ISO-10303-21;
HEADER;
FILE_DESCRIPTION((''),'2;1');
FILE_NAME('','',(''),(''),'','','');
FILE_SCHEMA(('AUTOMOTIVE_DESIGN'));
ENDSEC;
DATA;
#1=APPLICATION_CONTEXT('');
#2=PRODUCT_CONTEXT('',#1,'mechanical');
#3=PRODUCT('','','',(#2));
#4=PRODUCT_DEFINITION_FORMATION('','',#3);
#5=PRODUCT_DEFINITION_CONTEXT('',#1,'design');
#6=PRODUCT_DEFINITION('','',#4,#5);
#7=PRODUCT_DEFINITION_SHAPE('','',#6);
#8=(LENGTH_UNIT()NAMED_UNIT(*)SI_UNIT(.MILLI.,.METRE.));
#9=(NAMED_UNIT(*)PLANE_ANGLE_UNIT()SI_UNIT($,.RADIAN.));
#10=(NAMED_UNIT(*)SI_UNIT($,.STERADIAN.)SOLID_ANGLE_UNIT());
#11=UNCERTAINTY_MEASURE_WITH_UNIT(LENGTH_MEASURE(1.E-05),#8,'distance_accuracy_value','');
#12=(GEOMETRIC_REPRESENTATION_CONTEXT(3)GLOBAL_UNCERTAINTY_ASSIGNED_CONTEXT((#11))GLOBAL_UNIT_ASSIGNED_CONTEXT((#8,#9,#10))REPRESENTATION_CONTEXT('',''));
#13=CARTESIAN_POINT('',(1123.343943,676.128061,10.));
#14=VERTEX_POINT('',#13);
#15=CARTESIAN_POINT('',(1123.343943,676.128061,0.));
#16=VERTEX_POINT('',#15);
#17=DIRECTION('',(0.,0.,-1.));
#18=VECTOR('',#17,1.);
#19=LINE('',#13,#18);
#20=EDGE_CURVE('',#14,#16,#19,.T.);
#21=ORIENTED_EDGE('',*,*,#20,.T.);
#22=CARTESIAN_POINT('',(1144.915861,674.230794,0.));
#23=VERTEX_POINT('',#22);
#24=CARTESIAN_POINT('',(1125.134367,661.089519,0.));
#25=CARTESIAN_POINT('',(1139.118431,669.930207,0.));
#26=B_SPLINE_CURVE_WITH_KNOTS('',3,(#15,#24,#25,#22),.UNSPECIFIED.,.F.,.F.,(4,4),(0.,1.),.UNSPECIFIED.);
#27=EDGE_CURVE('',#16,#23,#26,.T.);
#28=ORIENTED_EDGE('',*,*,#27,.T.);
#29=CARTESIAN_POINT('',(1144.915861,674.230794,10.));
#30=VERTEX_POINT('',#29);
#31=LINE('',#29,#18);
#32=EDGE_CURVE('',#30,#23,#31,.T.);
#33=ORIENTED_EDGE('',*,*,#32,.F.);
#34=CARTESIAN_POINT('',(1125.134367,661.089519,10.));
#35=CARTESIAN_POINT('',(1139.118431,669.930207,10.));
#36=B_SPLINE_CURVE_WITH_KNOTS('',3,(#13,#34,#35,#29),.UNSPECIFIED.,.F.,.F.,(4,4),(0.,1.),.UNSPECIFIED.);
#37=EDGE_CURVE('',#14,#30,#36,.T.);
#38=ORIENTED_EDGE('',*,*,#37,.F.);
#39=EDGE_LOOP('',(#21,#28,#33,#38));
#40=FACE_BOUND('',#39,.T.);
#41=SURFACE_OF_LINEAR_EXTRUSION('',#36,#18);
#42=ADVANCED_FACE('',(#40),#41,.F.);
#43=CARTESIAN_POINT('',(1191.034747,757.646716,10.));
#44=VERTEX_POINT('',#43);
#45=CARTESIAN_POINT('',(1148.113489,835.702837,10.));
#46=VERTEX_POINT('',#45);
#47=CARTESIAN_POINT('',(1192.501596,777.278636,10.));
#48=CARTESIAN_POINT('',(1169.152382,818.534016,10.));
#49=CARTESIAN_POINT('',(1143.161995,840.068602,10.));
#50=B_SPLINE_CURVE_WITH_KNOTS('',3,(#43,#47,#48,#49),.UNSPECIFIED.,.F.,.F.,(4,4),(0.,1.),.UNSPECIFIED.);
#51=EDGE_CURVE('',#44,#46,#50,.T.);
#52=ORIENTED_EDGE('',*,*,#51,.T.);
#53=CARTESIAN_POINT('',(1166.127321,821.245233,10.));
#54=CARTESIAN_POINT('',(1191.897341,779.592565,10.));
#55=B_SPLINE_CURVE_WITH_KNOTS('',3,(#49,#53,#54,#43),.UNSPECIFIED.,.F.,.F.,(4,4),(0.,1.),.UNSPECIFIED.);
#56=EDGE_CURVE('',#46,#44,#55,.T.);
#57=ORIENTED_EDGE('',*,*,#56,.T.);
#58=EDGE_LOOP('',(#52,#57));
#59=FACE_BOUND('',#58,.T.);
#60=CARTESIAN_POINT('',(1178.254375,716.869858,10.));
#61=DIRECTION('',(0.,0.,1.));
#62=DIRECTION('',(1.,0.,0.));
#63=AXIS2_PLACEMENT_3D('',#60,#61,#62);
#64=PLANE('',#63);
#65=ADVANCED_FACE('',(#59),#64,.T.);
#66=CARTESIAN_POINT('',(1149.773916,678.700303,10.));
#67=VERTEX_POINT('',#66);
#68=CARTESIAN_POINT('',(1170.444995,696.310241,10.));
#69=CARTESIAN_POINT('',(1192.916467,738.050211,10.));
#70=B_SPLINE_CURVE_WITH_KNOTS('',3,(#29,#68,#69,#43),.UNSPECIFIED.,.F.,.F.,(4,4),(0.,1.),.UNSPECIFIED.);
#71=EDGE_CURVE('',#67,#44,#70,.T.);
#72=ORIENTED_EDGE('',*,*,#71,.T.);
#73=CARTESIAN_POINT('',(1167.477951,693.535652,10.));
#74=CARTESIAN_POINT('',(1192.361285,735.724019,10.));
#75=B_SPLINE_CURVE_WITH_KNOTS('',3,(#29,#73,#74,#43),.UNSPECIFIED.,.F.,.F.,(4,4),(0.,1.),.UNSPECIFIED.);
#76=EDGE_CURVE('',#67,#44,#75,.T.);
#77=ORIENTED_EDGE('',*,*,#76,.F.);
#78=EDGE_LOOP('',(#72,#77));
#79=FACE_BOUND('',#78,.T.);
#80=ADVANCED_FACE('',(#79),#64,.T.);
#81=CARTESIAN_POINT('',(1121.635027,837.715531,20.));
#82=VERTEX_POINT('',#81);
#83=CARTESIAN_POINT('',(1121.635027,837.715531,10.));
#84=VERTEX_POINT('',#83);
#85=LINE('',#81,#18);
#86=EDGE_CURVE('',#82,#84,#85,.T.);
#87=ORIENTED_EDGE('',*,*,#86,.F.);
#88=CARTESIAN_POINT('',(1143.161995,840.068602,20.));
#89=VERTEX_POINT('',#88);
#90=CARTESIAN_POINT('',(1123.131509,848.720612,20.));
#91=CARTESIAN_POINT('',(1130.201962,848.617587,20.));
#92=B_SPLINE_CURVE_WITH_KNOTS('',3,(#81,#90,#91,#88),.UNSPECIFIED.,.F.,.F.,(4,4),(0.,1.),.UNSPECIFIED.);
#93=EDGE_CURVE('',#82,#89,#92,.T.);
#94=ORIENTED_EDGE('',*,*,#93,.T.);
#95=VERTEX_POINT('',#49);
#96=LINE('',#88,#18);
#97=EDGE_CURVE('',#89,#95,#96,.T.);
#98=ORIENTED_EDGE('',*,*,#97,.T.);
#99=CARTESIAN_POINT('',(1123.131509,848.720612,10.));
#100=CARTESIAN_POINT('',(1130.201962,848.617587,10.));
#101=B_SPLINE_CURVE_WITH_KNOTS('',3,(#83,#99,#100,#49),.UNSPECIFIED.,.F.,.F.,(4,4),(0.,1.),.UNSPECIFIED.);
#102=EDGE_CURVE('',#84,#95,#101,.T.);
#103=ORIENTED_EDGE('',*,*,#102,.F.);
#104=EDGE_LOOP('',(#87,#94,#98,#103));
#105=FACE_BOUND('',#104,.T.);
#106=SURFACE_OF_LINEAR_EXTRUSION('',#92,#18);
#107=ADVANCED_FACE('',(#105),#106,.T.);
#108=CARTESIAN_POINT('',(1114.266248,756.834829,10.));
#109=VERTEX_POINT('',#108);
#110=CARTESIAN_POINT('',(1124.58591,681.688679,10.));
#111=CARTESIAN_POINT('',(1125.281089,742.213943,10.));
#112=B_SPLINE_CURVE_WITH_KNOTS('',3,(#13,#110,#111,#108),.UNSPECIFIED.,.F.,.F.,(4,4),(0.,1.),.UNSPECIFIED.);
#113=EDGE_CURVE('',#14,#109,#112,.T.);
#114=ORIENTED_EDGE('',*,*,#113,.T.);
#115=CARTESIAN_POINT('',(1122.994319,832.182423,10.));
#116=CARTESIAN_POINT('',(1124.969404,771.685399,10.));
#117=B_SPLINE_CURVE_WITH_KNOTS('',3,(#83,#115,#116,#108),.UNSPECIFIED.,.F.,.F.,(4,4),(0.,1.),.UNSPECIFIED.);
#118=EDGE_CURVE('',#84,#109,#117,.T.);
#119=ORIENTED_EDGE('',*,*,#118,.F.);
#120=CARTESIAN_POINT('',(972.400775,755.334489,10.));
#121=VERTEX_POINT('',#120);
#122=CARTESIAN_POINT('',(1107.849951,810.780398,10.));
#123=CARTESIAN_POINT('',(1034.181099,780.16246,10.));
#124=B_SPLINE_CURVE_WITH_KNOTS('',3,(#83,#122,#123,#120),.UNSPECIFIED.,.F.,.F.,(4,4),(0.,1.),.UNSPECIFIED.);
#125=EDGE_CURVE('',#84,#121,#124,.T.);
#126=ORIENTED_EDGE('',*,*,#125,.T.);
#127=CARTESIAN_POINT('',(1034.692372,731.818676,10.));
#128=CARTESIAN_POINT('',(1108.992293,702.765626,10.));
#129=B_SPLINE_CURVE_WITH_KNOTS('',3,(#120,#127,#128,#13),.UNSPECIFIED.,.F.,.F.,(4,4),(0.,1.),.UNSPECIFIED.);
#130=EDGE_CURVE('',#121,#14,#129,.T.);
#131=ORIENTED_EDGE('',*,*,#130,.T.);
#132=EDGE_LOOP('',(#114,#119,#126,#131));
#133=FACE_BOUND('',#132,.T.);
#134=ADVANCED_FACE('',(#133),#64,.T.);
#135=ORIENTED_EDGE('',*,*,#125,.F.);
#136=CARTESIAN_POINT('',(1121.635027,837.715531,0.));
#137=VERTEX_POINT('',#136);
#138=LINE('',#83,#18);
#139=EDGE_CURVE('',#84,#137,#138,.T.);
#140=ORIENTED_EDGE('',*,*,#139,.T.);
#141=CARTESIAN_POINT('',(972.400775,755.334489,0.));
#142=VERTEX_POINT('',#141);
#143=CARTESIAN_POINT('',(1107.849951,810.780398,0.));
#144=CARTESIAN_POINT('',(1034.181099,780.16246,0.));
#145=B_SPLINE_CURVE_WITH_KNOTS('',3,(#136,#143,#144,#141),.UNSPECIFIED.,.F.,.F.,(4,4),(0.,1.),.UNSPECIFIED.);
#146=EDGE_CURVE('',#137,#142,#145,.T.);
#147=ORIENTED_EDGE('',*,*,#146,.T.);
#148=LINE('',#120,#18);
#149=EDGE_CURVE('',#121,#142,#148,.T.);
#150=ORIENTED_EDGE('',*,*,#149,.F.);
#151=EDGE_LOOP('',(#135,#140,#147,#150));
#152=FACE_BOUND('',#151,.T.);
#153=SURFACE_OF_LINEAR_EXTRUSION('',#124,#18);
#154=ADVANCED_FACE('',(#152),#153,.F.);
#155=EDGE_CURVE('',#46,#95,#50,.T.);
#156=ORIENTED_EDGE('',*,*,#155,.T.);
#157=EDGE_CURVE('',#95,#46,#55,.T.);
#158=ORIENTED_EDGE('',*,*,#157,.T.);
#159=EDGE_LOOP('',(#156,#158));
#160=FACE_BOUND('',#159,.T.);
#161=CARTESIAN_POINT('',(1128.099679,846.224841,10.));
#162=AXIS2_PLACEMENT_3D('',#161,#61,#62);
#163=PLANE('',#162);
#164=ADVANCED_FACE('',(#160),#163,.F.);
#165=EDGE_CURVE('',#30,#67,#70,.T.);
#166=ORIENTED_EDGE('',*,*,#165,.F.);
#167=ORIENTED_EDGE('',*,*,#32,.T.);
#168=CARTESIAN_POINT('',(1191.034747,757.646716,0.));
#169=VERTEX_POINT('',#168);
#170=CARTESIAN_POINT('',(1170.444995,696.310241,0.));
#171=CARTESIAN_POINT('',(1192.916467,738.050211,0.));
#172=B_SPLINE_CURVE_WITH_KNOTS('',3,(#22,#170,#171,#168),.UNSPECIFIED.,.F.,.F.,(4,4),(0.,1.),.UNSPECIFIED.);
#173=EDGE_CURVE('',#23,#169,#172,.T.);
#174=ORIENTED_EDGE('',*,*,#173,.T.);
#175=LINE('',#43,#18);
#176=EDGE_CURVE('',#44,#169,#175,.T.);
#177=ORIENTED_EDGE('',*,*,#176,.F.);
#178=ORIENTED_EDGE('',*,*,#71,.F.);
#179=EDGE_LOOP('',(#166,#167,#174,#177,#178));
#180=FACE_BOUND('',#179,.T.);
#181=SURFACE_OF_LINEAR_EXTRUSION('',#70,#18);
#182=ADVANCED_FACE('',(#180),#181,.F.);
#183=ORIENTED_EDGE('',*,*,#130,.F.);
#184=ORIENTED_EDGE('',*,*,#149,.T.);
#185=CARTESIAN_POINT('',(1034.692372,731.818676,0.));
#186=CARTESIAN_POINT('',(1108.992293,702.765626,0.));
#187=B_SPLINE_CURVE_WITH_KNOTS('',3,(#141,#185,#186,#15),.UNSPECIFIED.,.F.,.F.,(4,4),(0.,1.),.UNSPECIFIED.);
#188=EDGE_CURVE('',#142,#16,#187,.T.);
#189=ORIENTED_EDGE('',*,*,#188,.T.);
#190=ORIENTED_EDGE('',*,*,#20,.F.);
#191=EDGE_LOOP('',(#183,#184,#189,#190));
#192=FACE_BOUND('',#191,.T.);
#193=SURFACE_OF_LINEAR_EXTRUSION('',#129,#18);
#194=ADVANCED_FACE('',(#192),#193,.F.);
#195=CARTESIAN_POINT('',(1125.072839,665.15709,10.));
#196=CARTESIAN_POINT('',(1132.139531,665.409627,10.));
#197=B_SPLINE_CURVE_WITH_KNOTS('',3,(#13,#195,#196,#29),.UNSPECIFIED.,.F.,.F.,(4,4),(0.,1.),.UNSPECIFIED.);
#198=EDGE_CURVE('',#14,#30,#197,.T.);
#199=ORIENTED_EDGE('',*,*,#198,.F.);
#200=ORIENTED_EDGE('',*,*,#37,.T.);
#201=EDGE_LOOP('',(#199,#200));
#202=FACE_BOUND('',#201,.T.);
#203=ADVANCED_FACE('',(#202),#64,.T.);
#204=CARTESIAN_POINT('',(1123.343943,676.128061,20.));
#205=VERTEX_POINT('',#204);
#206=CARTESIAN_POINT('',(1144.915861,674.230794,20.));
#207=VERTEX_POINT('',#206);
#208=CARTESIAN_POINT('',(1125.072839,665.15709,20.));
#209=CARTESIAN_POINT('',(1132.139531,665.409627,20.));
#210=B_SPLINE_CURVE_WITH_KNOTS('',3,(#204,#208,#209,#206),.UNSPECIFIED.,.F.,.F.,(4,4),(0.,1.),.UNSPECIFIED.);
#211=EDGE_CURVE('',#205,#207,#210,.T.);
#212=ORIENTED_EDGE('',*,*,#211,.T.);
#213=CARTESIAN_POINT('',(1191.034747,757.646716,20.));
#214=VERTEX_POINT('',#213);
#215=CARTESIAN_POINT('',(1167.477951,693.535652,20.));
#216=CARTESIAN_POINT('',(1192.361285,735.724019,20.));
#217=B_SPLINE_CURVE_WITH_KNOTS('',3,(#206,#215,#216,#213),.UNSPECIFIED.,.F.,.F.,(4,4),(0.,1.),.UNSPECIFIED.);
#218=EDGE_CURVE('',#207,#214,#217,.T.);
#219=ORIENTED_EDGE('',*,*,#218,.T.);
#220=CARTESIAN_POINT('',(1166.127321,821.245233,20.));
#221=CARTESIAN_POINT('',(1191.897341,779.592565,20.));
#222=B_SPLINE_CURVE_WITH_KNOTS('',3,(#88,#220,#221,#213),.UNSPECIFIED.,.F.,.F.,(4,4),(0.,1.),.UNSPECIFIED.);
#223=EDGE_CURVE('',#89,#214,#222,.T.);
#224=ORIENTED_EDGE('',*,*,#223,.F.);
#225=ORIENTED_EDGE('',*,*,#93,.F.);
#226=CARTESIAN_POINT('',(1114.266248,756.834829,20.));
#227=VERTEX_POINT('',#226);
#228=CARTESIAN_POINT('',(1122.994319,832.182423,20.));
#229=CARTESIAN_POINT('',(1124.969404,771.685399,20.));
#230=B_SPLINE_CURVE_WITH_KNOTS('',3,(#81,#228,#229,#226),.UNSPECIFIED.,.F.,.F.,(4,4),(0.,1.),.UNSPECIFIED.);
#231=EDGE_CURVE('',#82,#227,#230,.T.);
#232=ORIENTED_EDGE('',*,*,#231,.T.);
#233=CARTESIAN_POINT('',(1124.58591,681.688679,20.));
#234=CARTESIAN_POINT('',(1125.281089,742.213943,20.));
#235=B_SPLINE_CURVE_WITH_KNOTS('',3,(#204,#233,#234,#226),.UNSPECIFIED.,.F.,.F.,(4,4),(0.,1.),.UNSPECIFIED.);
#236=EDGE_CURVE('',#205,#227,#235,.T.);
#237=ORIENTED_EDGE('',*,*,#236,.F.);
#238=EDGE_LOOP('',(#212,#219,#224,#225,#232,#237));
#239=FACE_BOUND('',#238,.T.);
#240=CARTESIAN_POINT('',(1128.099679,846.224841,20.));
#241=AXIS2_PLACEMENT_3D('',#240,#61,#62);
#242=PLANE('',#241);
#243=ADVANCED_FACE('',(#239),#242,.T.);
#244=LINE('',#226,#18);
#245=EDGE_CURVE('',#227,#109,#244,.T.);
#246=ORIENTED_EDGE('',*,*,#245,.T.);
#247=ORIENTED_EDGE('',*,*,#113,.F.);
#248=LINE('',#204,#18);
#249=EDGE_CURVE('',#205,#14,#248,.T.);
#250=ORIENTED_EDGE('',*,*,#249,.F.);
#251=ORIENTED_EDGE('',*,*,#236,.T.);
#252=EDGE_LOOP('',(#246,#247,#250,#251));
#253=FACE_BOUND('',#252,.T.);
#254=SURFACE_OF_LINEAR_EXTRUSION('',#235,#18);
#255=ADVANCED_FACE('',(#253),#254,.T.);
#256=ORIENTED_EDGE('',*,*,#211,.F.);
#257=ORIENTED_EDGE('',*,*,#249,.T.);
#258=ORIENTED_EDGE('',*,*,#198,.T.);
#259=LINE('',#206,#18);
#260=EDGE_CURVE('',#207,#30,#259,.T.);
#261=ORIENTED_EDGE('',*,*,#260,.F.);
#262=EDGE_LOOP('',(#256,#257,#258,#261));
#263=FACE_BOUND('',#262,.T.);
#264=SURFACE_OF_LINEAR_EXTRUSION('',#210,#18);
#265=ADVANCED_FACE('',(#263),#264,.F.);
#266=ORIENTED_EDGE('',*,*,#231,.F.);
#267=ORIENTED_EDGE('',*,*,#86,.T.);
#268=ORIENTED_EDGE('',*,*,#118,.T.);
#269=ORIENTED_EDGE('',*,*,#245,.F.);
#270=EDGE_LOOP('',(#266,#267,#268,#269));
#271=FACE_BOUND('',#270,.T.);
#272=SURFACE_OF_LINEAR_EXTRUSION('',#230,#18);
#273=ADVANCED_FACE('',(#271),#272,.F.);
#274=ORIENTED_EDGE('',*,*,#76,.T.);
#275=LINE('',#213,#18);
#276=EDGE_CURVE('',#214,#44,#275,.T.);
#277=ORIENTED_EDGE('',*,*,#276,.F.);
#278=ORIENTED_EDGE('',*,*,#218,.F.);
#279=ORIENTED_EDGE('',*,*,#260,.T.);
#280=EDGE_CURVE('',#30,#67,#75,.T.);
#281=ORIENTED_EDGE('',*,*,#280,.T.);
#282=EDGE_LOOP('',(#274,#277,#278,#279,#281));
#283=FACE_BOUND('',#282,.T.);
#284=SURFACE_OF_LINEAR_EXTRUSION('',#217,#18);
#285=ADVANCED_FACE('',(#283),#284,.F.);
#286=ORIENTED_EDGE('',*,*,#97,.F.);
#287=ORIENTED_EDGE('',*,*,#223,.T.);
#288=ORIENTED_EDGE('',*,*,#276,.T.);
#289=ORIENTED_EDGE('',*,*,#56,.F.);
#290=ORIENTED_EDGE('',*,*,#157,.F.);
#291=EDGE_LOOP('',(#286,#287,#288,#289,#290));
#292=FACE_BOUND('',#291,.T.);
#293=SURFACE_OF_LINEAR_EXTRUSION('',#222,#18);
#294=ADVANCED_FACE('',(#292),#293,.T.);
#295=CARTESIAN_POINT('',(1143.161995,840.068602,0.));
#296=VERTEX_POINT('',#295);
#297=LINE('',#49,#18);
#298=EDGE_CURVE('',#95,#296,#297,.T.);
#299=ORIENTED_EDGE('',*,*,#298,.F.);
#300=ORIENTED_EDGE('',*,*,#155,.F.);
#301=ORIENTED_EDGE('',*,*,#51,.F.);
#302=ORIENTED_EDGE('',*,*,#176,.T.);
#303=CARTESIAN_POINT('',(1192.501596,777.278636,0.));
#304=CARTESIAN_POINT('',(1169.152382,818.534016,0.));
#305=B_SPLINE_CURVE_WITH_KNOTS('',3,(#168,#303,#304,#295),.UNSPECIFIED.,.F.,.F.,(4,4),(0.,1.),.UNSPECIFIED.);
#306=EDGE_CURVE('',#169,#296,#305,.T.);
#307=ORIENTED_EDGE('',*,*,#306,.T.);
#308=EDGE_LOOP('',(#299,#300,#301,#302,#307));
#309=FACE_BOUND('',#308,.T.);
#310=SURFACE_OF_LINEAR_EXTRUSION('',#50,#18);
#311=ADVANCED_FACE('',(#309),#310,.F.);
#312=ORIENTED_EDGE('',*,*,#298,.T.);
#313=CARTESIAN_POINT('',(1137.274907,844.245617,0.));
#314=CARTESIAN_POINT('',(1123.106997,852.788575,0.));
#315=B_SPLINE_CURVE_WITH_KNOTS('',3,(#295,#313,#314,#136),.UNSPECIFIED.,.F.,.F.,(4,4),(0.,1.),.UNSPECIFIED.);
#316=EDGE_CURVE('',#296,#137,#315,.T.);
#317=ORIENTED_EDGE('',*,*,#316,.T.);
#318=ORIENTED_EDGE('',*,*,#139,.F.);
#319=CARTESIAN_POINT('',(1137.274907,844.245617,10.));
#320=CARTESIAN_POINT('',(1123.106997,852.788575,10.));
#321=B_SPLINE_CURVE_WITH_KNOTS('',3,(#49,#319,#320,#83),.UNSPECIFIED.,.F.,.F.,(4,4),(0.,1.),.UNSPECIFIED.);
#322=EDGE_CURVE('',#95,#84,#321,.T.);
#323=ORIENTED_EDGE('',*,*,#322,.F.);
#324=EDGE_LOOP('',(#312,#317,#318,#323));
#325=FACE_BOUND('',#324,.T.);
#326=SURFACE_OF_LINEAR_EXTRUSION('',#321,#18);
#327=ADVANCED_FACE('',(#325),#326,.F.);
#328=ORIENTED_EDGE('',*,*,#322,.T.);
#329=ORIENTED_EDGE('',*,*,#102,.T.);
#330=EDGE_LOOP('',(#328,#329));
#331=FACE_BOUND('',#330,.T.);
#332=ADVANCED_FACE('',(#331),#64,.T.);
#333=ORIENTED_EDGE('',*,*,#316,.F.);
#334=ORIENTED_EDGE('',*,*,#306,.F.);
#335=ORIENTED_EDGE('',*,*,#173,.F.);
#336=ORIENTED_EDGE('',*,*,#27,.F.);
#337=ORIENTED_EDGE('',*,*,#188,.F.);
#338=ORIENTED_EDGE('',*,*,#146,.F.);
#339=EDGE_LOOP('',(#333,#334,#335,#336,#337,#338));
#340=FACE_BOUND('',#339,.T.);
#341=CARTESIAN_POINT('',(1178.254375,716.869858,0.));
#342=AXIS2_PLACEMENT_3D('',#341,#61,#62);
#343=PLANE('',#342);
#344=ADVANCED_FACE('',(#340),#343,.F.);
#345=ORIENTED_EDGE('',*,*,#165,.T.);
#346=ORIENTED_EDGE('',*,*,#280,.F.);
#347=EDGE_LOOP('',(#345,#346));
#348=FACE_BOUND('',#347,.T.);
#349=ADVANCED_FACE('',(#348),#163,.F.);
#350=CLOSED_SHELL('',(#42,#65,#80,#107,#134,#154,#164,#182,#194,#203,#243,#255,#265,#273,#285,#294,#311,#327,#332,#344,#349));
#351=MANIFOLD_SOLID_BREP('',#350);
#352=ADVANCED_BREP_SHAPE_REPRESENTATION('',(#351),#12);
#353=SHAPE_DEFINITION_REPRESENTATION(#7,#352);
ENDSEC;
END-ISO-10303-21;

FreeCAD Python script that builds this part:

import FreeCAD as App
import Part
import Sketcher

doc = App.newDocument("Part")
body = doc.addObject("PartDesign::Body", "Body")

# Sketch on XY plane
sketch1 = body.newObject("Sketcher::SketchObject", "Sketch")
sketch1.AttachmentSupport = (doc.getObject("XY_Plane"), [""])
sketch1.MapMode = "FlatFace"
sketch1.addGeometry(Part.BSplineCurve([App.Vector(1191.034747, 757.646716, 0), App.Vector(1192.501596, 777.278636, 0), App.Vector(1169.152382, 818.534016, 0), App.Vector(1143.161995, 840.068602, 0)], [4, 4], [0, 1], False, 3, [1, 1, 1, 1], False), False)
sketch1.addGeometry(Part.BSplineCurve([App.Vector(1143.161995, 840.068602, 0), App.Vector(1137.274907, 844.245617, 0), App.Vector(1123.106997, 852.788575, 0), App.Vector(1121.635027, 837.715531, 0)], [4, 4], [0, 1], False, 3, [1, 1, 1, 1], False), False)
sketch1.addGeometry(Part.BSplineCurve([App.Vector(1121.635027, 837.715531, 0), App.Vector(1107.849951, 810.780398, 0), App.Vector(1034.181099, 780.16246, 0), App.Vector(972.400775, 755.334489, 0)], [4, 4], [0, 1], False, 3, [1, 1, 1, 1], False), False)
sketch1.addGeometry(Part.BSplineCurve([App.Vector(1123.343943, 676.128061, 0), App.Vector(1108.992293, 702.765626, 0), App.Vector(1034.692372, 731.818676, 0), App.Vector(972.400775, 755.334489, 0)], [4, 4], [0, 1], False, 3, [1, 1, 1, 1], False), False)
sketch1.addGeometry(Part.BSplineCurve([App.Vector(1144.915861, 674.230794, 0), App.Vector(1139.118431, 669.930207, 0), App.Vector(1125.134367, 661.089519, 0), App.Vector(1123.343943, 676.128061, 0)], [4, 4], [0, 1], False, 3, [1, 1, 1, 1], False), False)
sketch1.addGeometry(Part.BSplineCurve([App.Vector(1191.034747, 757.646716, 0), App.Vector(1192.916467, 738.050211, 0), App.Vector(1170.444995, 696.310241, 0), App.Vector(1144.915861, 674.230794, 0)], [4, 4], [0, 1], False, 3, [1, 1, 1, 1], False), False)
sketch1.addConstraint(Sketcher.Constraint("Block", 0))
sketch1.addConstraint(Sketcher.Constraint("Block", 1))
sketch1.addConstraint(Sketcher.Constraint("Block", 2))
sketch1.addConstraint(Sketcher.Constraint("Block", 3))
sketch1.addConstraint(Sketcher.Constraint("Block", 4))
sketch1.addConstraint(Sketcher.Constraint("Block", 5))
pad1 = body.newObject("PartDesign::Pad", "Pad")
pad1.Profile = sketch1
pad1.Length = 10

# Sketch on XY plane
sketch2 = body.newObject("Sketcher::SketchObject", "Sketch001")
sketch2.AttachmentSupport = (doc.getObject("XY_Plane"), [""])
sketch2.MapMode = "FlatFace"
sketch2.AttachmentOffset = App.Placement(App.Vector(0, 0, 10), App.Rotation())
sketch2.addGeometry(Part.BSplineCurve([App.Vector(1121.635027, 837.715531, 0), App.Vector(1122.994319, 832.182423, 0), App.Vector(1124.969404, 771.685399, 0), App.Vector(1114.266248, 756.834829, 0)], [4, 4], [0, 1], False, 3, [1, 1, 1, 1], False), False)
sketch2.addGeometry(Part.BSplineCurve([App.Vector(1123.343943, 676.128061, 0), App.Vector(1124.58591, 681.688679, 0), App.Vector(1125.281089, 742.213943, 0), App.Vector(1114.266248, 756.834829, 0)], [4, 4], [0, 1], False, 3, [1, 1, 1, 1], False), False)
sketch2.addGeometry(Part.BSplineCurve([App.Vector(1123.343943, 676.128061, 0), App.Vector(1125.072839, 665.15709, 0), App.Vector(1132.139531, 665.409627, 0), App.Vector(1144.915861, 674.230794, 0)], [4, 4], [0, 1], False, 3, [1, 1, 1, 1], False), False)
sketch2.addGeometry(Part.BSplineCurve([App.Vector(1144.915861, 674.230794, 0), App.Vector(1167.477951, 693.535652, 0), App.Vector(1192.361285, 735.724019, 0), App.Vector(1191.034747, 757.646716, 0)], [4, 4], [0, 1], False, 3, [1, 1, 1, 1], False), False)
sketch2.addGeometry(Part.BSplineCurve([App.Vector(1143.161995, 840.068602, 0), App.Vector(1166.127321, 821.245233, 0), App.Vector(1191.897341, 779.592565, 0), App.Vector(1191.034747, 757.646716, 0)], [4, 4], [0, 1], False, 3, [1, 1, 1, 1], False), False)
sketch2.addGeometry(Part.BSplineCurve([App.Vector(1121.635027, 837.715531, 0), App.Vector(1123.131509, 848.720612, 0), App.Vector(1130.201962, 848.617587, 0), App.Vector(1143.161995, 840.068602, 0)], [4, 4], [0, 1], False, 3, [1, 1, 1, 1], False), False)
sketch2.addConstraint(Sketcher.Constraint("Block", 0))
sketch2.addConstraint(Sketcher.Constraint("Block", 1))
sketch2.addConstraint(Sketcher.Constraint("Block", 2))
sketch2.addConstraint(Sketcher.Constraint("Block", 3))
sketch2.addConstraint(Sketcher.Constraint("Block", 4))
sketch2.addConstraint(Sketcher.Constraint("Block", 5))
pad2 = body.newObject("PartDesign::Pad", "Pad001")
pad2.Profile = sketch2
pad2.Length = 10

doc.recompute()
